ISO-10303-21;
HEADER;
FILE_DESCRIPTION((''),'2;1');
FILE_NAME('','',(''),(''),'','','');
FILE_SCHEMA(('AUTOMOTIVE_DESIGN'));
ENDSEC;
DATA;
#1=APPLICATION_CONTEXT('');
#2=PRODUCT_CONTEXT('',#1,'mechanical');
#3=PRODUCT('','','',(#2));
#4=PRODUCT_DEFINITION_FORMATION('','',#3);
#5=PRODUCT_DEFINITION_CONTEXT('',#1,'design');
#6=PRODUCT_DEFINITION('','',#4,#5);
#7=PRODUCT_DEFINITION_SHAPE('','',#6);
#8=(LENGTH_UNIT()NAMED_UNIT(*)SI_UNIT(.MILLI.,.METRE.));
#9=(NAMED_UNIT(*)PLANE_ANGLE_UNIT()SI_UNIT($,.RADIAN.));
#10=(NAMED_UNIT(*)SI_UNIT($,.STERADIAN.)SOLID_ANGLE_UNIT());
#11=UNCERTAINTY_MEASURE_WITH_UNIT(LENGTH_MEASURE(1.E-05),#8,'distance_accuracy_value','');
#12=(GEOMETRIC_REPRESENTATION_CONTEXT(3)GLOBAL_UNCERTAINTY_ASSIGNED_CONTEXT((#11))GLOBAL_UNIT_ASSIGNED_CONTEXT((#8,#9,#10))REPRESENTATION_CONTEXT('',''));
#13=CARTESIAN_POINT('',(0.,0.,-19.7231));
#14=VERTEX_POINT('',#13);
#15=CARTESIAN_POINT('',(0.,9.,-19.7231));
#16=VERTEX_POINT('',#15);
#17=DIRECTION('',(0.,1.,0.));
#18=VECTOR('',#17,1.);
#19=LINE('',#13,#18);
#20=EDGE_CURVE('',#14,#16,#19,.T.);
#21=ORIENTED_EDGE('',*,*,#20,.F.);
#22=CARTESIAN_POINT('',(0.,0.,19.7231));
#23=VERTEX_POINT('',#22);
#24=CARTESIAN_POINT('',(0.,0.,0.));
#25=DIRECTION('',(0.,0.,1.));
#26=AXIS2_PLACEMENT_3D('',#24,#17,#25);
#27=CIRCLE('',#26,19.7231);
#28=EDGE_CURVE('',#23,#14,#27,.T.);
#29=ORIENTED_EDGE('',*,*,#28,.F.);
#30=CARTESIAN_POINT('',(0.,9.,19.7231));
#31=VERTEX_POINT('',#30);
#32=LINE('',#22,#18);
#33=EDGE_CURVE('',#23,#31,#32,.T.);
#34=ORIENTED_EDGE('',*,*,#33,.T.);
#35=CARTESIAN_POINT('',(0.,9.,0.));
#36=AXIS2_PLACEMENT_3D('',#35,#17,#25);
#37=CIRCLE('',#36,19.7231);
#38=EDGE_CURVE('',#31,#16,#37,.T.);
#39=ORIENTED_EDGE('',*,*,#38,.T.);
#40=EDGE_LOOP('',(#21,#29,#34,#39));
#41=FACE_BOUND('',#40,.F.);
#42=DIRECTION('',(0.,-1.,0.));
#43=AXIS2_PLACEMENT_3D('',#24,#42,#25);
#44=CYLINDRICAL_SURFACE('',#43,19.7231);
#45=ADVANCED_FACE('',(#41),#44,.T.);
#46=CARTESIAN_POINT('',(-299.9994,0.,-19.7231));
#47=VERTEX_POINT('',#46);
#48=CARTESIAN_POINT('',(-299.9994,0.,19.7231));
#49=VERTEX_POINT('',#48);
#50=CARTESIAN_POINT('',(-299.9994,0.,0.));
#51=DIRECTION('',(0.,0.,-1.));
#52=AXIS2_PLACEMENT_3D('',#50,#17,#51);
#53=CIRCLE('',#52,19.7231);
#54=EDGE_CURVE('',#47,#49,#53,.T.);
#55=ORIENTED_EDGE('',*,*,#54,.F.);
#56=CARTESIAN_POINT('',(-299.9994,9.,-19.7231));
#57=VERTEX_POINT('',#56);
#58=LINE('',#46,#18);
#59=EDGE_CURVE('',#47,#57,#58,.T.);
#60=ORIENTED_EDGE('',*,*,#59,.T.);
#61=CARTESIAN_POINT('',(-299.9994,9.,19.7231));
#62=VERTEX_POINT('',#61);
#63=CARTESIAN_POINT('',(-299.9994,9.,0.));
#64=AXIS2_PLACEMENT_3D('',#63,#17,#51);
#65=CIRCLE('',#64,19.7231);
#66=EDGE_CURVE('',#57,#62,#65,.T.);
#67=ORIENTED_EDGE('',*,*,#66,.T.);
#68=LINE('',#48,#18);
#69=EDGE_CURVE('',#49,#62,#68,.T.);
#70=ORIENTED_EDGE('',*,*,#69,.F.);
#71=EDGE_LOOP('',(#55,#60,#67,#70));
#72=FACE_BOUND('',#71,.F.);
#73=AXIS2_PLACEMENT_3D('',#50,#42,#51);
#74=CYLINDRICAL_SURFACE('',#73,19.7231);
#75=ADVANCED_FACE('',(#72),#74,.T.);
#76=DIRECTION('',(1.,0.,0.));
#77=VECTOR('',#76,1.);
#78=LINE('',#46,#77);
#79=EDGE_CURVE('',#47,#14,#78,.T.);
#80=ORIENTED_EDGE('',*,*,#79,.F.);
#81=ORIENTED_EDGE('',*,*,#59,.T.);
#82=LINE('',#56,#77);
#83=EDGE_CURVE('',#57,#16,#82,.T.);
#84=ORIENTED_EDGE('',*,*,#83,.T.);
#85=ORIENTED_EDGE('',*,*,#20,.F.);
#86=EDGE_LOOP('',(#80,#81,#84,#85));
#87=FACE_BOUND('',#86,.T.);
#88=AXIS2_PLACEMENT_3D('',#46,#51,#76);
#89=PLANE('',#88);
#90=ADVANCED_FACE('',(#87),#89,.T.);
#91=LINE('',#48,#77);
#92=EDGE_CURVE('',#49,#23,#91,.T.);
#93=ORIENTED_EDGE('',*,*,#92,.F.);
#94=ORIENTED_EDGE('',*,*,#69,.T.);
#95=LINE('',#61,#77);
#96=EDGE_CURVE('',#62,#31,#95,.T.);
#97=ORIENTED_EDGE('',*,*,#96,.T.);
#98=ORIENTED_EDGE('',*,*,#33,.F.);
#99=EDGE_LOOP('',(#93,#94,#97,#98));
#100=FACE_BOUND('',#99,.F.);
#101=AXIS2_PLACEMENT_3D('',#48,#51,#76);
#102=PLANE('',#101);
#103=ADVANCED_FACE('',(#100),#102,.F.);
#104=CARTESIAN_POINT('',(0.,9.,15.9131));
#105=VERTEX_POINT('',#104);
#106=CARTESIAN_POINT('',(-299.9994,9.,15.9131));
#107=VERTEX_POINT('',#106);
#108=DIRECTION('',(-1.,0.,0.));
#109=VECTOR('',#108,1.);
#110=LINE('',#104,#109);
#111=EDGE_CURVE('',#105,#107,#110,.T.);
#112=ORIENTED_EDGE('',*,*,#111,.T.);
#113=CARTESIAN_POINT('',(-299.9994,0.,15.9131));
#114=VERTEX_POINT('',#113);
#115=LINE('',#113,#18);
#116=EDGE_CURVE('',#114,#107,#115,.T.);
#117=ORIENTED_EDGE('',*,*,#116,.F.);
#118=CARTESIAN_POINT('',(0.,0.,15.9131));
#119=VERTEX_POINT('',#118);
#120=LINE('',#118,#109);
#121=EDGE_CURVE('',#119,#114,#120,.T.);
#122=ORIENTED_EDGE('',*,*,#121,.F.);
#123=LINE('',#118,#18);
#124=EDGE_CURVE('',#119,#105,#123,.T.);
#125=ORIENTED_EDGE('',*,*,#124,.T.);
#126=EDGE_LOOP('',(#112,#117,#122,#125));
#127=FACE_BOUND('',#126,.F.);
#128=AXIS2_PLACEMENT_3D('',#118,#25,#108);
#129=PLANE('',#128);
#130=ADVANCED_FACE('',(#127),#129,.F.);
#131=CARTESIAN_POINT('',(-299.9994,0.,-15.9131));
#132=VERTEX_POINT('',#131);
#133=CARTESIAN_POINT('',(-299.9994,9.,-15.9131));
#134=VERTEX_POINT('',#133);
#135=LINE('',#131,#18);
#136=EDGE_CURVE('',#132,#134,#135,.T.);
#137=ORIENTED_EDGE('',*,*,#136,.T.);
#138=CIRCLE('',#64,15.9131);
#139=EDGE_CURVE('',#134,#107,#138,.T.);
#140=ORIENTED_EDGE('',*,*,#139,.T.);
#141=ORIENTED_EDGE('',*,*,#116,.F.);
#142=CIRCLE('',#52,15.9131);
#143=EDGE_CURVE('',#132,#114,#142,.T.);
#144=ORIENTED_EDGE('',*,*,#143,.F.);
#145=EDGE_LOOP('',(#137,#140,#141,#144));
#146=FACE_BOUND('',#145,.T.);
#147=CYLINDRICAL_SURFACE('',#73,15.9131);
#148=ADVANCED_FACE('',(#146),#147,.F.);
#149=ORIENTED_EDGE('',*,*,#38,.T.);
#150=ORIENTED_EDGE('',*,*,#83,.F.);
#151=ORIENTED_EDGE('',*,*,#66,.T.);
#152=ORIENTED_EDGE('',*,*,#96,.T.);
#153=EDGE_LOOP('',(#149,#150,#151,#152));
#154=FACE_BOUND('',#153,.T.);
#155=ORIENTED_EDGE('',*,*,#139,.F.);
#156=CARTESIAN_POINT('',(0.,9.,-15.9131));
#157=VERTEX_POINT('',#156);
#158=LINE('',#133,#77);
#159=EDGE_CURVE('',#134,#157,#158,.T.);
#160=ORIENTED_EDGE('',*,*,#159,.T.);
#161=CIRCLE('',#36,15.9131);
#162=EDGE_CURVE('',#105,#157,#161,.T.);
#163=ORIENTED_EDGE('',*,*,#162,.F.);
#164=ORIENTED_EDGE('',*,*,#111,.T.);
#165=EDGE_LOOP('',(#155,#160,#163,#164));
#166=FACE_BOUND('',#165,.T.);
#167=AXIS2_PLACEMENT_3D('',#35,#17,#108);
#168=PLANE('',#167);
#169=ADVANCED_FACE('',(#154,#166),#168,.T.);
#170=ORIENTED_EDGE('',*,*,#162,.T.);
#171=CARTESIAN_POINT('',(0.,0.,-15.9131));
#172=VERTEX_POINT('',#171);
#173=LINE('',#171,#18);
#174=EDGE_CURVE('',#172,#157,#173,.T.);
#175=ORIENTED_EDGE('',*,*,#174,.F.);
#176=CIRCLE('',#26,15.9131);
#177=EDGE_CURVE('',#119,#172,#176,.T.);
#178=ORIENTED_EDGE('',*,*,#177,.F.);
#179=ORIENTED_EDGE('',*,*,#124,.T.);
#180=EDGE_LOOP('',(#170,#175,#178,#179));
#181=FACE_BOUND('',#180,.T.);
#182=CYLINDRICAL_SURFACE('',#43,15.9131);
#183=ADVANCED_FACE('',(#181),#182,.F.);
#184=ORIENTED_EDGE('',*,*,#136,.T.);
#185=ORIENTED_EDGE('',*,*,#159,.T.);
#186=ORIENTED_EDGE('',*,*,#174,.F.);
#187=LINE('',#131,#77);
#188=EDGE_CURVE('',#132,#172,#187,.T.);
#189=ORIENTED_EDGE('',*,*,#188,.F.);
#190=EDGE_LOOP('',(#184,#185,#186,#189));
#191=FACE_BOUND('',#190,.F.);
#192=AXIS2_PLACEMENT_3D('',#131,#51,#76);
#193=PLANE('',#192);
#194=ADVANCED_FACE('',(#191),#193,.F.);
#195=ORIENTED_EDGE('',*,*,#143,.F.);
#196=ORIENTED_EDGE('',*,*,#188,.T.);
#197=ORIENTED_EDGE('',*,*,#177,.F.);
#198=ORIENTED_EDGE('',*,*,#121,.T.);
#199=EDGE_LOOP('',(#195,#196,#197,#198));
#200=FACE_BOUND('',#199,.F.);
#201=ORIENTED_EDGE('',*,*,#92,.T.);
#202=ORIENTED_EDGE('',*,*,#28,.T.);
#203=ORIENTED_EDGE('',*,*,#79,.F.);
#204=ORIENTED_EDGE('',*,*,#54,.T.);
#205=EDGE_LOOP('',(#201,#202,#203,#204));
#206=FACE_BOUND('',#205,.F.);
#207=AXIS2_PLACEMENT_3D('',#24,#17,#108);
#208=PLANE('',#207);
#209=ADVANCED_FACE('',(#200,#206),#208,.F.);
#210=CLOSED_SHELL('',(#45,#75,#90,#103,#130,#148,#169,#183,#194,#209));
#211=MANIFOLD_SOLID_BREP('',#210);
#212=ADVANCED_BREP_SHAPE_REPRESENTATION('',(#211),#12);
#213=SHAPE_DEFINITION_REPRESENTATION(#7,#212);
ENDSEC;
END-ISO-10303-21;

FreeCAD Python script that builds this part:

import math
import FreeCAD as App
import Part
import Sketcher
Q = App.Units.Quantity

doc = App.newDocument("Part")
body = doc.addObject("PartDesign::Body", "Body")

# Sketch on XZ plane
sketch1 = body.newObject("Sketcher::SketchObject", "Sketch")
sketch1.AttachmentSupport = (doc.getObject("XZ_Plane"), [""])
sketch1.MapMode = "FlatFace"
sketch1.addGeometry(Part.ArcOfCircle(Part.Circle(App.Vector(-300, 0, 0), App.Vector(0, 0, 1), 20), math.radians(90), math.radians(270)), False)
sketch1.addGeometry(Part.LineSegment(App.Vector(-300, 20, 0), App.Vector(0, 20, 0)), False)
sketch1.addGeometry(Part.ArcOfCircle(Part.Circle(App.Vector(0, 0, 0), App.Vector(0, 0, 1), 20), math.radians(-90), math.radians(90)), False)
sketch1.addGeometry(Part.LineSegment(App.Vector(0, -20, 0), App.Vector(-300, -20, 0)), False)
sketch1.addGeometry(Part.ArcOfCircle(Part.Circle(App.Vector(0, 0, 0), App.Vector(0, 0, 1), 16), math.radians(-90), math.radians(90)), False)
sketch1.addGeometry(Part.LineSegment(App.Vector(0, 16, 0), App.Vector(-300, 16, 0)), False)
sketch1.addGeometry(Part.ArcOfCircle(Part.Circle(App.Vector(-300, 0, 0), App.Vector(0, 0, 1), 16), math.radians(90), math.radians(270)), False)
sketch1.addGeometry(Part.LineSegment(App.Vector(-300, -16, 0), App.Vector(0, -16, 0)), False)
sketch1.addConstraint(Sketcher.Constraint("Tangent", 0, 1, 1, 1))
sketch1.addConstraint(Sketcher.Constraint("Tangent", 1, 2, 2, 2))
sketch1.addConstraint(Sketcher.Constraint("Tangent", 2, 1, 3, 1))
sketch1.addConstraint(Sketcher.Constraint("Tangent", 3, 2, 0, 2))
sketch1.addConstraint(Sketcher.Constraint("Tangent", 4, 2, 5, 1))
sketch1.addConstraint(Sketcher.Constraint("Tangent", 5, 2, 6, 1))
sketch1.addConstraint(Sketcher.Constraint("Tangent", 6, 2, 7, 1))
sketch1.addConstraint(Sketcher.Constraint("Tangent", 7, 2, 4, 1))
sketch1.addConstraint(Sketcher.Constraint("Horizontal", 1))
sketch1.addConstraint(Sketcher.Constraint("Horizontal", 3))
sketch1.addConstraint(Sketcher.Constraint("Horizontal", 5))
sketch1.addConstraint(Sketcher.Constraint("Horizontal", 7))
sketch1.addConstraint(Sketcher.Constraint("Coincident", 2, 3, -1, 1))
sketch1.addConstraint(Sketcher.Constraint("Coincident", 4, 3, -1, 1))
sketch1.addConstraint(Sketcher.Constraint("Vertical", 6, 3, 0, 1))
sketch1.addConstraint(Sketcher.Constraint("Radius", 4, Q("0.6265 in")))
sketch1.addConstraint(Sketcher.Constraint("DistanceX", 1, 1, 1, 2, Q("11.811 in")))
sketch1.addConstraint(Sketcher.Constraint("DistanceY", 4, 2, 1, 2, Q("0.15 in")))
pad1 = body.newObject("PartDesign::Pad", "Pad")
pad1.Profile = sketch1
pad1.Length = 9
pad1.Reversed = True

doc.recompute()
